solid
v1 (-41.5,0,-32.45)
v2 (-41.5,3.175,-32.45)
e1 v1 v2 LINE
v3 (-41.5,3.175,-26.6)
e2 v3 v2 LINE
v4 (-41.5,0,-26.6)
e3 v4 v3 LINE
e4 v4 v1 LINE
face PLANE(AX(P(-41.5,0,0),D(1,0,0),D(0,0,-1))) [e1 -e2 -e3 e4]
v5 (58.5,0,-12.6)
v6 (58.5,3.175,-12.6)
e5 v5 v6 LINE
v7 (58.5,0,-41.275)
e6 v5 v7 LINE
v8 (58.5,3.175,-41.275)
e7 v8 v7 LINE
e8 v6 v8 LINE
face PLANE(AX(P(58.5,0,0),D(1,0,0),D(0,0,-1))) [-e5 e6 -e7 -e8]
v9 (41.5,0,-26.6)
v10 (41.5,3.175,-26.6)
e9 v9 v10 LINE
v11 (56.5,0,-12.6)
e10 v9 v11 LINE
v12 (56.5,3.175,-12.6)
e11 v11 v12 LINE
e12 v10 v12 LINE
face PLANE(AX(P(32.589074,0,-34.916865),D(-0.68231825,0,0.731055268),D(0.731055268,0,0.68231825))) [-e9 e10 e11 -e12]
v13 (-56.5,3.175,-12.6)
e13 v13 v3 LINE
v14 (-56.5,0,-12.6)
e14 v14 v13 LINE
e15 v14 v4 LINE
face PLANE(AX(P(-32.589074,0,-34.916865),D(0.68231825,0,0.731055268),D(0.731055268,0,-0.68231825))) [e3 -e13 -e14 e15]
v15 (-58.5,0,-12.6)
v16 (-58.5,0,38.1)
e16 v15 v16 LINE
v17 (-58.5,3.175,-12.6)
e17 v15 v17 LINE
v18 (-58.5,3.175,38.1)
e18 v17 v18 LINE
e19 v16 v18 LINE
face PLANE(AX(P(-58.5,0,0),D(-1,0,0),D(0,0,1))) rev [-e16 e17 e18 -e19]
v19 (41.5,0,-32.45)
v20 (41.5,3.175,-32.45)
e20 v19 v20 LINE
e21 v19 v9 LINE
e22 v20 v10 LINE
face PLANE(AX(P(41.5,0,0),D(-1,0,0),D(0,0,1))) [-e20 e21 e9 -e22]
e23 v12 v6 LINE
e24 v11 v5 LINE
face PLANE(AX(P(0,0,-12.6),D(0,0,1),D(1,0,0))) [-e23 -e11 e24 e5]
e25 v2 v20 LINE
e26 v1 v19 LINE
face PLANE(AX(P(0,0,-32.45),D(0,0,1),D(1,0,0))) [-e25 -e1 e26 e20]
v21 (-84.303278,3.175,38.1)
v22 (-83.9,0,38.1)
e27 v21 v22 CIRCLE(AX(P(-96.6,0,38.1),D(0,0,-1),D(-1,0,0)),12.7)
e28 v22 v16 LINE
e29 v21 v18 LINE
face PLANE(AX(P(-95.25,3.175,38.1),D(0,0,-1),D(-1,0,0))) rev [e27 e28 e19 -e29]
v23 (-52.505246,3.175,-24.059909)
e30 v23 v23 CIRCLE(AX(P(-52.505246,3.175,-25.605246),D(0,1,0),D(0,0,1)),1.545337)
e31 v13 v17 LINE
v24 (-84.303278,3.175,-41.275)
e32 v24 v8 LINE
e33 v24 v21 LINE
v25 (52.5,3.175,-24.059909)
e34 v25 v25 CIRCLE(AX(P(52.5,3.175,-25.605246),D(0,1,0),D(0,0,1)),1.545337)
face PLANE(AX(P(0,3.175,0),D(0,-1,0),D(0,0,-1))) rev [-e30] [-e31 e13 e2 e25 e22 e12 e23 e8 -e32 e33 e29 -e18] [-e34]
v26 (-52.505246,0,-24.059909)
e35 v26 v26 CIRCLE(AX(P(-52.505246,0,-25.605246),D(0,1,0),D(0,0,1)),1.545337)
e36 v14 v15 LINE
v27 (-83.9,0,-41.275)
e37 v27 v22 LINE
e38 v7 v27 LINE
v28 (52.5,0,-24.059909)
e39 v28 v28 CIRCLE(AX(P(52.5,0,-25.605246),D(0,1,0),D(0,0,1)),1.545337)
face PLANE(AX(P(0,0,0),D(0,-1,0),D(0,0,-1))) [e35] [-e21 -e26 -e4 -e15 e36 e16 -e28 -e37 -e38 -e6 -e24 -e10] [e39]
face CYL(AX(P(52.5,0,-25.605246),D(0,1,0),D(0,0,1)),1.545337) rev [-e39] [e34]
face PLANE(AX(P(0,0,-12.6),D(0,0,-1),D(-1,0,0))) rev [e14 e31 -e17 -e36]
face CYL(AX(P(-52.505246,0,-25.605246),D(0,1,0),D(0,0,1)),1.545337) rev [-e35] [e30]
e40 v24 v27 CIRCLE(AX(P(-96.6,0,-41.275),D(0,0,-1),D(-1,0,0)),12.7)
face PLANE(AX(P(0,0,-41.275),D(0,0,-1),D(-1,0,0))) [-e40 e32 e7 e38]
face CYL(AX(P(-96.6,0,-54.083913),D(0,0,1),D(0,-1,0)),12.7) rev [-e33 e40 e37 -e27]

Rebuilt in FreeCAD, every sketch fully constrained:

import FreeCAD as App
import Part
import Sketcher
from FreeCAD import Vector

doc = App.newDocument("Part")
body = doc.addObject("PartDesign::Body", "Body")

# Sketch on XZ plane
sketch1 = doc.addObject("Sketcher::SketchObject", "Sketch")
body.addObject(sketch1)
sketch1.AttachmentSupport = (doc.XZ_Plane, [""])
sketch1.MapMode = "FlatFace"
sketch1.addGeometry(Part.LineSegment(Vector(-95, -38, 0), Vector(-95, 38, 0)), False)
sketch1.addGeometry(Part.LineSegment(Vector(-95, 38, 0), Vector(95, 38, 0)), False)
sketch1.addGeometry(Part.LineSegment(Vector(95, 38, 0), Vector(95, -38, 0)), False)
sketch1.addGeometry(Part.LineSegment(Vector(95, -38, 0), Vector(-95, -38, 0)), False)
sketch1.addConstraint(Sketcher.Constraint("Coincident", 0, 2, 1, 1))
sketch1.addConstraint(Sketcher.Constraint("Coincident", 1, 2, 2, 1))
sketch1.addConstraint(Sketcher.Constraint("Coincident", 2, 2, 3, 1))
sketch1.addConstraint(Sketcher.Constraint("Coincident", 3, 2, 0, 1))
sketch1.addConstraint(Sketcher.Constraint("Vertical", 0))
sketch1.addConstraint(Sketcher.Constraint("Horizontal", 1))
sketch1.addConstraint(Sketcher.Constraint("Vertical", 2))
sketch1.addConstraint(Sketcher.Constraint("Horizontal", 3))
sketch1.addConstraint(Sketcher.Constraint("Symmetric", 0, 2, 2, 2, -1, 1))
sketch1.addConstraint(Sketcher.Constraint("DistanceX", 1, 1, 1, 2, 190.5))
sketch1.addConstraint(Sketcher.Constraint("DistanceY", 0, 1, 0, 2, 76.2))
pad1 = doc.addObject("PartDesign::Pad", "Pad")
body.addObject(pad1)
pad1.Profile = sketch1
pad1.Length = 3.175
pad1.Reversed = True

# Sketch on XZ plane
sketch2 = doc.addObject("Sketcher::SketchObject", "Sketch001")
body.addObject(sketch2)
sketch2.AttachmentSupport = (doc.XZ_Plane, [""])
sketch2.MapMode = "FlatFace"
sketch2.AttachmentOffset = App.Placement(Vector(0, 0, -3.175), App.Rotation())
sketch2.addGeometry(Part.LineSegment(Vector(-58.5, -12.6, 0), Vector(-58.5, 38.1, 0)), False)
sketch2.addGeometry(Part.LineSegment(Vector(-58.5, 38.1, 0), Vector(95.2, 38.1, 0)), False)
sketch2.addGeometry(Part.LineSegment(Vector(95.2, 38.1, 0), Vector(95.2, -38.1, 0)), False)
sketch2.addGeometry(Part.LineSegment(Vector(95.2, -38.1, 0), Vector(58.5, -38.1, 0)), False)
sketch2.addGeometry(Part.LineSegment(Vector(58.5, -38.1, 0), Vector(58.5, -12.6, 0)), False)
sketch2.addGeometry(Part.LineSegment(Vector(58.5, -12.6, 0), Vector(56.5, -12.6, 0)), False)
sketch2.addGeometry(Part.LineSegment(Vector(56.5, -12.6, 0), Vector(41.5, -26.6, 0)), False)
sketch2.addGeometry(Part.LineSegment(Vector(41.5, -26.6, 0), Vector(41.5, -32.5, 0)), False)
sketch2.addGeometry(Part.LineSegment(Vector(41.5, -32.5, 0), Vector(-41.5, -32.5, 0)), False)
sketch2.addGeometry(Part.LineSegment(Vector(-41.5, -32.5, 0), Vector(-41.5, -26.6, 0)), False)
sketch2.addGeometry(Part.LineSegment(Vector(-41.5, -26.6, 0), Vector(-56.5, -12.6, 0)), False)
sketch2.addGeometry(Part.LineSegment(Vector(-56.5, -12.6, 0), Vector(-58.5, -12.6, 0)), False)
sketch2.addGeometry(Part.Circle(Vector(-52.5, -25.6, 0), Vector(0, 0, 1), 1.5), False)
sketch2.addGeometry(Part.Circle(Vector(52.5, -25.6, 0), Vector(0, 0, 1), 1.5), False)
sketch2.addConstraint(Sketcher.Constraint("Coincident", 0, 2, 1, 1))
sketch2.addConstraint(Sketcher.Constraint("Coincident", 1, 2, 2, 1))
sketch2.addConstraint(Sketcher.Constraint("Coincident", 2, 2, 3, 1))
sketch2.addConstraint(Sketcher.Constraint("Coincident", 3, 2, 4, 1))
sketch2.addConstraint(Sketcher.Constraint("Coincident", 4, 2, 5, 1))
sketch2.addConstraint(Sketcher.Constraint("Coincident", 5, 2, 6, 1))
sketch2.addConstraint(Sketcher.Constraint("Coincident", 6, 2, 7, 1))
sketch2.addConstraint(Sketcher.Constraint("Coincident", 7, 2, 8, 1))
sketch2.addConstraint(Sketcher.Constraint("Coincident", 8, 2, 9, 1))
sketch2.addConstraint(Sketcher.Constraint("Coincident", 9, 2, 10, 1))
sketch2.addConstraint(Sketcher.Constraint("Coincident", 10, 2, 11, 1))
sketch2.addConstraint(Sketcher.Constraint("Coincident", 11, 2, 0, 1))
sketch2.addConstraint(Sketcher.Constraint("Vertical", 0))
sketch2.addConstraint(Sketcher.Constraint("Horizontal", 1))
sketch2.addConstraint(Sketcher.Constraint("Vertical", 2))
sketch2.addConstraint(Sketcher.Constraint("Horizontal", 3))
sketch2.addConstraint(Sketcher.Constraint("Vertical", 4))
sketch2.addConstraint(Sketcher.Constraint("Horizontal", 5))
sketch2.addConstraint(Sketcher.Constraint("Vertical", 7))
sketch2.addConstraint(Sketcher.Constraint("Horizontal", 8))
sketch2.addConstraint(Sketcher.Constraint("Vertical", 9))
sketch2.addConstraint(Sketcher.Constraint("Horizontal", 11))
sketch2.addConstraint(Sketcher.Constraint("Equal", 12, 13))
sketch2.addConstraint(Sketcher.Constraint("Symmetric", 0, 2, 3, 2, -1, 1))
sketch2.addConstraint(Sketcher.Constraint("Symmetric", 6, 2, 9, 2, -2))
sketch2.addConstraint(Sketcher.Constraint("Symmetric", 5, 2, 10, 2, -2))
sketch2.addConstraint(Sketcher.Constraint("Horizontal", 12, 3, 13, 3))
sketch2.addConstraint(Sketcher.Constraint("DistanceX", 5, 2, 5, 1, 2.0))
sketch2.addConstraint(Sketcher.Constraint("DistanceX", 8, 2, 8, 1, 83.0))
sketch2.addConstraint(Sketcher.Constraint("DistanceY", 0, 1, 0, 2, 50.7))
sketch2.addConstraint(Sketcher.Constraint("DistanceY", 2, 2, 2, 1, 76.2))
sketch2.addConstraint(Sketcher.Constraint("DistanceX", 0, 2, 13, 3, 111.0))
sketch2.addConstraint(Sketcher.Constraint("DistanceX", 13, 3, 3, 2, 6.0))
sketch2.addConstraint(Sketcher.Constraint("DistanceY", 6, 2, 5, 2, 14.0))
sketch2.addConstraint(Sketcher.Constraint("DistanceX", 1, 1, 1, 2, 153.75))
sketch2.addConstraint(Sketcher.Constraint("DistanceY", 7, 2, 7, 1, 5.85))
sketch2.addConstraint(Sketcher.Constraint("Diameter", 12, 3.090673))
sketch2.addConstraint(Sketcher.Constraint("DistanceX", 12, 3, -1, 1, 52.505246))
sketch2.addConstraint(Sketcher.Constraint("DistanceY", 12, 3, -1, 1, 25.605246))
pocket1 = doc.addObject("PartDesign::Pocket", "Pocket")
body.addObject(pocket1)
pocket1.Profile = sketch2
pocket1.Type = "ThroughAll"
pocket1.Reversed = True

# Sketch on XY plane
sketch3 = doc.addObject("Sketcher::SketchObject", "Sketch002")
body.addObject(sketch3)
sketch3.AttachmentSupport = (doc.XY_Plane, [""])
sketch3.MapMode = "FlatFace"
sketch3.AttachmentOffset = App.Placement(Vector(0, 0, -38.1), App.Rotation())
sketch3.addGeometry(Part.LineSegment(Vector(58.5, 3.2, 0), Vector(58.5, 0, 0)), False)
sketch3.addGeometry(Part.LineSegment(Vector(58.5, 0, 0), Vector(-95.2, 0, 0)), False)
sketch3.addGeometry(Part.LineSegment(Vector(-95.2, 0, 0), Vector(-95.2, 3.2, 0)), False)
sketch3.addGeometry(Part.LineSegment(Vector(-95.2, 3.2, 0), Vector(58.5, 3.2, 0)), False)
sketch3.addConstraint(Sketcher.Constraint("Coincident", 0, 2, 1, 1))
sketch3.addConstraint(Sketcher.Constraint("Coincident", 1, 2, 2, 1))
sketch3.addConstraint(Sketcher.Constraint("Coincident", 2, 2, 3, 1))
sketch3.addConstraint(Sketcher.Constraint("Coincident", 3, 2, 0, 1))
sketch3.addConstraint(Sketcher.Constraint("Vertical", 0))
sketch3.addConstraint(Sketcher.Constraint("Horizontal", 1))
sketch3.addConstraint(Sketcher.Constraint("Vertical", 2))
sketch3.addConstraint(Sketcher.Constraint("Horizontal", 3))
sketch3.addConstraint(Sketcher.Constraint("PointOnObject", 0, 2, -1))
sketch3.addConstraint(Sketcher.Constraint("DistanceX", 1, 2, 1, 1, 153.75))
sketch3.addConstraint(Sketcher.Constraint("DistanceX", -1, 1, 0, 2, 58.5))
sketch3.addConstraint(Sketcher.Constraint("DistanceY", 0, 2, 0, 1, 3.175))
pad2 = doc.addObject("PartDesign::Pad", "Pad001")
body.addObject(pad2)
pad2.Profile = sketch3
pad2.Length = 3.175
pad2.Reversed = True

# Sketch on XY plane
sketch4 = doc.addObject("Sketcher::SketchObject", "Sketch003")
body.addObject(sketch4)
sketch4.AttachmentSupport = (doc.XY_Plane, [""])
sketch4.MapMode = "FlatFace"
sketch4.AttachmentOffset = App.Placement(Vector(0, 0, -54.083913), App.Rotation())
sketch4.addGeometry(Part.Circle(Vector(-97, 0, 0), Vector(0, 0, 1), 13), False)
sketch4.addConstraint(Sketcher.Constraint("PointOnObject", 0, 3, -1))
sketch4.addConstraint(Sketcher.Constraint("Diameter", 0, 25.4))
sketch4.addConstraint(Sketcher.Constraint("DistanceX", 0, 3, -1, 1, 96.6))

# Sketch on XZ plane
sketch5 = doc.addObject("Sketcher::SketchObject", "Sketch004")
body.addObject(sketch5)
sketch5.AttachmentSupport = (doc.XZ_Plane, [""])
sketch5.MapMode = "FlatFace"
sketch5.addGeometry(Part.LineSegment(Vector(-97, -54, 0), Vector(-97, 450, 0)), False)
sketch5.addConstraint(Sketcher.Constraint("Vertical", 0))
sketch5.addConstraint(Sketcher.Constraint("DistanceX", 0, 1, -1, 1, 96.6))
sketch5.addConstraint(Sketcher.Constraint("DistanceY", 0, 1, 0, 2, 504.538543))
sketch5.addConstraint(Sketcher.Constraint("DistanceY", -1, 1, 0, 2, 450.454631))
doc.recompute()

subtractivepipe = doc.addObject("PartDesign::SubtractivePipe", "SubtractivePipe")
body.addObject(subtractivepipe)
subtractivepipe.Profile = sketch4
subtractivepipe.Spine = (sketch5, ["Edge1"])

doc.recompute()
